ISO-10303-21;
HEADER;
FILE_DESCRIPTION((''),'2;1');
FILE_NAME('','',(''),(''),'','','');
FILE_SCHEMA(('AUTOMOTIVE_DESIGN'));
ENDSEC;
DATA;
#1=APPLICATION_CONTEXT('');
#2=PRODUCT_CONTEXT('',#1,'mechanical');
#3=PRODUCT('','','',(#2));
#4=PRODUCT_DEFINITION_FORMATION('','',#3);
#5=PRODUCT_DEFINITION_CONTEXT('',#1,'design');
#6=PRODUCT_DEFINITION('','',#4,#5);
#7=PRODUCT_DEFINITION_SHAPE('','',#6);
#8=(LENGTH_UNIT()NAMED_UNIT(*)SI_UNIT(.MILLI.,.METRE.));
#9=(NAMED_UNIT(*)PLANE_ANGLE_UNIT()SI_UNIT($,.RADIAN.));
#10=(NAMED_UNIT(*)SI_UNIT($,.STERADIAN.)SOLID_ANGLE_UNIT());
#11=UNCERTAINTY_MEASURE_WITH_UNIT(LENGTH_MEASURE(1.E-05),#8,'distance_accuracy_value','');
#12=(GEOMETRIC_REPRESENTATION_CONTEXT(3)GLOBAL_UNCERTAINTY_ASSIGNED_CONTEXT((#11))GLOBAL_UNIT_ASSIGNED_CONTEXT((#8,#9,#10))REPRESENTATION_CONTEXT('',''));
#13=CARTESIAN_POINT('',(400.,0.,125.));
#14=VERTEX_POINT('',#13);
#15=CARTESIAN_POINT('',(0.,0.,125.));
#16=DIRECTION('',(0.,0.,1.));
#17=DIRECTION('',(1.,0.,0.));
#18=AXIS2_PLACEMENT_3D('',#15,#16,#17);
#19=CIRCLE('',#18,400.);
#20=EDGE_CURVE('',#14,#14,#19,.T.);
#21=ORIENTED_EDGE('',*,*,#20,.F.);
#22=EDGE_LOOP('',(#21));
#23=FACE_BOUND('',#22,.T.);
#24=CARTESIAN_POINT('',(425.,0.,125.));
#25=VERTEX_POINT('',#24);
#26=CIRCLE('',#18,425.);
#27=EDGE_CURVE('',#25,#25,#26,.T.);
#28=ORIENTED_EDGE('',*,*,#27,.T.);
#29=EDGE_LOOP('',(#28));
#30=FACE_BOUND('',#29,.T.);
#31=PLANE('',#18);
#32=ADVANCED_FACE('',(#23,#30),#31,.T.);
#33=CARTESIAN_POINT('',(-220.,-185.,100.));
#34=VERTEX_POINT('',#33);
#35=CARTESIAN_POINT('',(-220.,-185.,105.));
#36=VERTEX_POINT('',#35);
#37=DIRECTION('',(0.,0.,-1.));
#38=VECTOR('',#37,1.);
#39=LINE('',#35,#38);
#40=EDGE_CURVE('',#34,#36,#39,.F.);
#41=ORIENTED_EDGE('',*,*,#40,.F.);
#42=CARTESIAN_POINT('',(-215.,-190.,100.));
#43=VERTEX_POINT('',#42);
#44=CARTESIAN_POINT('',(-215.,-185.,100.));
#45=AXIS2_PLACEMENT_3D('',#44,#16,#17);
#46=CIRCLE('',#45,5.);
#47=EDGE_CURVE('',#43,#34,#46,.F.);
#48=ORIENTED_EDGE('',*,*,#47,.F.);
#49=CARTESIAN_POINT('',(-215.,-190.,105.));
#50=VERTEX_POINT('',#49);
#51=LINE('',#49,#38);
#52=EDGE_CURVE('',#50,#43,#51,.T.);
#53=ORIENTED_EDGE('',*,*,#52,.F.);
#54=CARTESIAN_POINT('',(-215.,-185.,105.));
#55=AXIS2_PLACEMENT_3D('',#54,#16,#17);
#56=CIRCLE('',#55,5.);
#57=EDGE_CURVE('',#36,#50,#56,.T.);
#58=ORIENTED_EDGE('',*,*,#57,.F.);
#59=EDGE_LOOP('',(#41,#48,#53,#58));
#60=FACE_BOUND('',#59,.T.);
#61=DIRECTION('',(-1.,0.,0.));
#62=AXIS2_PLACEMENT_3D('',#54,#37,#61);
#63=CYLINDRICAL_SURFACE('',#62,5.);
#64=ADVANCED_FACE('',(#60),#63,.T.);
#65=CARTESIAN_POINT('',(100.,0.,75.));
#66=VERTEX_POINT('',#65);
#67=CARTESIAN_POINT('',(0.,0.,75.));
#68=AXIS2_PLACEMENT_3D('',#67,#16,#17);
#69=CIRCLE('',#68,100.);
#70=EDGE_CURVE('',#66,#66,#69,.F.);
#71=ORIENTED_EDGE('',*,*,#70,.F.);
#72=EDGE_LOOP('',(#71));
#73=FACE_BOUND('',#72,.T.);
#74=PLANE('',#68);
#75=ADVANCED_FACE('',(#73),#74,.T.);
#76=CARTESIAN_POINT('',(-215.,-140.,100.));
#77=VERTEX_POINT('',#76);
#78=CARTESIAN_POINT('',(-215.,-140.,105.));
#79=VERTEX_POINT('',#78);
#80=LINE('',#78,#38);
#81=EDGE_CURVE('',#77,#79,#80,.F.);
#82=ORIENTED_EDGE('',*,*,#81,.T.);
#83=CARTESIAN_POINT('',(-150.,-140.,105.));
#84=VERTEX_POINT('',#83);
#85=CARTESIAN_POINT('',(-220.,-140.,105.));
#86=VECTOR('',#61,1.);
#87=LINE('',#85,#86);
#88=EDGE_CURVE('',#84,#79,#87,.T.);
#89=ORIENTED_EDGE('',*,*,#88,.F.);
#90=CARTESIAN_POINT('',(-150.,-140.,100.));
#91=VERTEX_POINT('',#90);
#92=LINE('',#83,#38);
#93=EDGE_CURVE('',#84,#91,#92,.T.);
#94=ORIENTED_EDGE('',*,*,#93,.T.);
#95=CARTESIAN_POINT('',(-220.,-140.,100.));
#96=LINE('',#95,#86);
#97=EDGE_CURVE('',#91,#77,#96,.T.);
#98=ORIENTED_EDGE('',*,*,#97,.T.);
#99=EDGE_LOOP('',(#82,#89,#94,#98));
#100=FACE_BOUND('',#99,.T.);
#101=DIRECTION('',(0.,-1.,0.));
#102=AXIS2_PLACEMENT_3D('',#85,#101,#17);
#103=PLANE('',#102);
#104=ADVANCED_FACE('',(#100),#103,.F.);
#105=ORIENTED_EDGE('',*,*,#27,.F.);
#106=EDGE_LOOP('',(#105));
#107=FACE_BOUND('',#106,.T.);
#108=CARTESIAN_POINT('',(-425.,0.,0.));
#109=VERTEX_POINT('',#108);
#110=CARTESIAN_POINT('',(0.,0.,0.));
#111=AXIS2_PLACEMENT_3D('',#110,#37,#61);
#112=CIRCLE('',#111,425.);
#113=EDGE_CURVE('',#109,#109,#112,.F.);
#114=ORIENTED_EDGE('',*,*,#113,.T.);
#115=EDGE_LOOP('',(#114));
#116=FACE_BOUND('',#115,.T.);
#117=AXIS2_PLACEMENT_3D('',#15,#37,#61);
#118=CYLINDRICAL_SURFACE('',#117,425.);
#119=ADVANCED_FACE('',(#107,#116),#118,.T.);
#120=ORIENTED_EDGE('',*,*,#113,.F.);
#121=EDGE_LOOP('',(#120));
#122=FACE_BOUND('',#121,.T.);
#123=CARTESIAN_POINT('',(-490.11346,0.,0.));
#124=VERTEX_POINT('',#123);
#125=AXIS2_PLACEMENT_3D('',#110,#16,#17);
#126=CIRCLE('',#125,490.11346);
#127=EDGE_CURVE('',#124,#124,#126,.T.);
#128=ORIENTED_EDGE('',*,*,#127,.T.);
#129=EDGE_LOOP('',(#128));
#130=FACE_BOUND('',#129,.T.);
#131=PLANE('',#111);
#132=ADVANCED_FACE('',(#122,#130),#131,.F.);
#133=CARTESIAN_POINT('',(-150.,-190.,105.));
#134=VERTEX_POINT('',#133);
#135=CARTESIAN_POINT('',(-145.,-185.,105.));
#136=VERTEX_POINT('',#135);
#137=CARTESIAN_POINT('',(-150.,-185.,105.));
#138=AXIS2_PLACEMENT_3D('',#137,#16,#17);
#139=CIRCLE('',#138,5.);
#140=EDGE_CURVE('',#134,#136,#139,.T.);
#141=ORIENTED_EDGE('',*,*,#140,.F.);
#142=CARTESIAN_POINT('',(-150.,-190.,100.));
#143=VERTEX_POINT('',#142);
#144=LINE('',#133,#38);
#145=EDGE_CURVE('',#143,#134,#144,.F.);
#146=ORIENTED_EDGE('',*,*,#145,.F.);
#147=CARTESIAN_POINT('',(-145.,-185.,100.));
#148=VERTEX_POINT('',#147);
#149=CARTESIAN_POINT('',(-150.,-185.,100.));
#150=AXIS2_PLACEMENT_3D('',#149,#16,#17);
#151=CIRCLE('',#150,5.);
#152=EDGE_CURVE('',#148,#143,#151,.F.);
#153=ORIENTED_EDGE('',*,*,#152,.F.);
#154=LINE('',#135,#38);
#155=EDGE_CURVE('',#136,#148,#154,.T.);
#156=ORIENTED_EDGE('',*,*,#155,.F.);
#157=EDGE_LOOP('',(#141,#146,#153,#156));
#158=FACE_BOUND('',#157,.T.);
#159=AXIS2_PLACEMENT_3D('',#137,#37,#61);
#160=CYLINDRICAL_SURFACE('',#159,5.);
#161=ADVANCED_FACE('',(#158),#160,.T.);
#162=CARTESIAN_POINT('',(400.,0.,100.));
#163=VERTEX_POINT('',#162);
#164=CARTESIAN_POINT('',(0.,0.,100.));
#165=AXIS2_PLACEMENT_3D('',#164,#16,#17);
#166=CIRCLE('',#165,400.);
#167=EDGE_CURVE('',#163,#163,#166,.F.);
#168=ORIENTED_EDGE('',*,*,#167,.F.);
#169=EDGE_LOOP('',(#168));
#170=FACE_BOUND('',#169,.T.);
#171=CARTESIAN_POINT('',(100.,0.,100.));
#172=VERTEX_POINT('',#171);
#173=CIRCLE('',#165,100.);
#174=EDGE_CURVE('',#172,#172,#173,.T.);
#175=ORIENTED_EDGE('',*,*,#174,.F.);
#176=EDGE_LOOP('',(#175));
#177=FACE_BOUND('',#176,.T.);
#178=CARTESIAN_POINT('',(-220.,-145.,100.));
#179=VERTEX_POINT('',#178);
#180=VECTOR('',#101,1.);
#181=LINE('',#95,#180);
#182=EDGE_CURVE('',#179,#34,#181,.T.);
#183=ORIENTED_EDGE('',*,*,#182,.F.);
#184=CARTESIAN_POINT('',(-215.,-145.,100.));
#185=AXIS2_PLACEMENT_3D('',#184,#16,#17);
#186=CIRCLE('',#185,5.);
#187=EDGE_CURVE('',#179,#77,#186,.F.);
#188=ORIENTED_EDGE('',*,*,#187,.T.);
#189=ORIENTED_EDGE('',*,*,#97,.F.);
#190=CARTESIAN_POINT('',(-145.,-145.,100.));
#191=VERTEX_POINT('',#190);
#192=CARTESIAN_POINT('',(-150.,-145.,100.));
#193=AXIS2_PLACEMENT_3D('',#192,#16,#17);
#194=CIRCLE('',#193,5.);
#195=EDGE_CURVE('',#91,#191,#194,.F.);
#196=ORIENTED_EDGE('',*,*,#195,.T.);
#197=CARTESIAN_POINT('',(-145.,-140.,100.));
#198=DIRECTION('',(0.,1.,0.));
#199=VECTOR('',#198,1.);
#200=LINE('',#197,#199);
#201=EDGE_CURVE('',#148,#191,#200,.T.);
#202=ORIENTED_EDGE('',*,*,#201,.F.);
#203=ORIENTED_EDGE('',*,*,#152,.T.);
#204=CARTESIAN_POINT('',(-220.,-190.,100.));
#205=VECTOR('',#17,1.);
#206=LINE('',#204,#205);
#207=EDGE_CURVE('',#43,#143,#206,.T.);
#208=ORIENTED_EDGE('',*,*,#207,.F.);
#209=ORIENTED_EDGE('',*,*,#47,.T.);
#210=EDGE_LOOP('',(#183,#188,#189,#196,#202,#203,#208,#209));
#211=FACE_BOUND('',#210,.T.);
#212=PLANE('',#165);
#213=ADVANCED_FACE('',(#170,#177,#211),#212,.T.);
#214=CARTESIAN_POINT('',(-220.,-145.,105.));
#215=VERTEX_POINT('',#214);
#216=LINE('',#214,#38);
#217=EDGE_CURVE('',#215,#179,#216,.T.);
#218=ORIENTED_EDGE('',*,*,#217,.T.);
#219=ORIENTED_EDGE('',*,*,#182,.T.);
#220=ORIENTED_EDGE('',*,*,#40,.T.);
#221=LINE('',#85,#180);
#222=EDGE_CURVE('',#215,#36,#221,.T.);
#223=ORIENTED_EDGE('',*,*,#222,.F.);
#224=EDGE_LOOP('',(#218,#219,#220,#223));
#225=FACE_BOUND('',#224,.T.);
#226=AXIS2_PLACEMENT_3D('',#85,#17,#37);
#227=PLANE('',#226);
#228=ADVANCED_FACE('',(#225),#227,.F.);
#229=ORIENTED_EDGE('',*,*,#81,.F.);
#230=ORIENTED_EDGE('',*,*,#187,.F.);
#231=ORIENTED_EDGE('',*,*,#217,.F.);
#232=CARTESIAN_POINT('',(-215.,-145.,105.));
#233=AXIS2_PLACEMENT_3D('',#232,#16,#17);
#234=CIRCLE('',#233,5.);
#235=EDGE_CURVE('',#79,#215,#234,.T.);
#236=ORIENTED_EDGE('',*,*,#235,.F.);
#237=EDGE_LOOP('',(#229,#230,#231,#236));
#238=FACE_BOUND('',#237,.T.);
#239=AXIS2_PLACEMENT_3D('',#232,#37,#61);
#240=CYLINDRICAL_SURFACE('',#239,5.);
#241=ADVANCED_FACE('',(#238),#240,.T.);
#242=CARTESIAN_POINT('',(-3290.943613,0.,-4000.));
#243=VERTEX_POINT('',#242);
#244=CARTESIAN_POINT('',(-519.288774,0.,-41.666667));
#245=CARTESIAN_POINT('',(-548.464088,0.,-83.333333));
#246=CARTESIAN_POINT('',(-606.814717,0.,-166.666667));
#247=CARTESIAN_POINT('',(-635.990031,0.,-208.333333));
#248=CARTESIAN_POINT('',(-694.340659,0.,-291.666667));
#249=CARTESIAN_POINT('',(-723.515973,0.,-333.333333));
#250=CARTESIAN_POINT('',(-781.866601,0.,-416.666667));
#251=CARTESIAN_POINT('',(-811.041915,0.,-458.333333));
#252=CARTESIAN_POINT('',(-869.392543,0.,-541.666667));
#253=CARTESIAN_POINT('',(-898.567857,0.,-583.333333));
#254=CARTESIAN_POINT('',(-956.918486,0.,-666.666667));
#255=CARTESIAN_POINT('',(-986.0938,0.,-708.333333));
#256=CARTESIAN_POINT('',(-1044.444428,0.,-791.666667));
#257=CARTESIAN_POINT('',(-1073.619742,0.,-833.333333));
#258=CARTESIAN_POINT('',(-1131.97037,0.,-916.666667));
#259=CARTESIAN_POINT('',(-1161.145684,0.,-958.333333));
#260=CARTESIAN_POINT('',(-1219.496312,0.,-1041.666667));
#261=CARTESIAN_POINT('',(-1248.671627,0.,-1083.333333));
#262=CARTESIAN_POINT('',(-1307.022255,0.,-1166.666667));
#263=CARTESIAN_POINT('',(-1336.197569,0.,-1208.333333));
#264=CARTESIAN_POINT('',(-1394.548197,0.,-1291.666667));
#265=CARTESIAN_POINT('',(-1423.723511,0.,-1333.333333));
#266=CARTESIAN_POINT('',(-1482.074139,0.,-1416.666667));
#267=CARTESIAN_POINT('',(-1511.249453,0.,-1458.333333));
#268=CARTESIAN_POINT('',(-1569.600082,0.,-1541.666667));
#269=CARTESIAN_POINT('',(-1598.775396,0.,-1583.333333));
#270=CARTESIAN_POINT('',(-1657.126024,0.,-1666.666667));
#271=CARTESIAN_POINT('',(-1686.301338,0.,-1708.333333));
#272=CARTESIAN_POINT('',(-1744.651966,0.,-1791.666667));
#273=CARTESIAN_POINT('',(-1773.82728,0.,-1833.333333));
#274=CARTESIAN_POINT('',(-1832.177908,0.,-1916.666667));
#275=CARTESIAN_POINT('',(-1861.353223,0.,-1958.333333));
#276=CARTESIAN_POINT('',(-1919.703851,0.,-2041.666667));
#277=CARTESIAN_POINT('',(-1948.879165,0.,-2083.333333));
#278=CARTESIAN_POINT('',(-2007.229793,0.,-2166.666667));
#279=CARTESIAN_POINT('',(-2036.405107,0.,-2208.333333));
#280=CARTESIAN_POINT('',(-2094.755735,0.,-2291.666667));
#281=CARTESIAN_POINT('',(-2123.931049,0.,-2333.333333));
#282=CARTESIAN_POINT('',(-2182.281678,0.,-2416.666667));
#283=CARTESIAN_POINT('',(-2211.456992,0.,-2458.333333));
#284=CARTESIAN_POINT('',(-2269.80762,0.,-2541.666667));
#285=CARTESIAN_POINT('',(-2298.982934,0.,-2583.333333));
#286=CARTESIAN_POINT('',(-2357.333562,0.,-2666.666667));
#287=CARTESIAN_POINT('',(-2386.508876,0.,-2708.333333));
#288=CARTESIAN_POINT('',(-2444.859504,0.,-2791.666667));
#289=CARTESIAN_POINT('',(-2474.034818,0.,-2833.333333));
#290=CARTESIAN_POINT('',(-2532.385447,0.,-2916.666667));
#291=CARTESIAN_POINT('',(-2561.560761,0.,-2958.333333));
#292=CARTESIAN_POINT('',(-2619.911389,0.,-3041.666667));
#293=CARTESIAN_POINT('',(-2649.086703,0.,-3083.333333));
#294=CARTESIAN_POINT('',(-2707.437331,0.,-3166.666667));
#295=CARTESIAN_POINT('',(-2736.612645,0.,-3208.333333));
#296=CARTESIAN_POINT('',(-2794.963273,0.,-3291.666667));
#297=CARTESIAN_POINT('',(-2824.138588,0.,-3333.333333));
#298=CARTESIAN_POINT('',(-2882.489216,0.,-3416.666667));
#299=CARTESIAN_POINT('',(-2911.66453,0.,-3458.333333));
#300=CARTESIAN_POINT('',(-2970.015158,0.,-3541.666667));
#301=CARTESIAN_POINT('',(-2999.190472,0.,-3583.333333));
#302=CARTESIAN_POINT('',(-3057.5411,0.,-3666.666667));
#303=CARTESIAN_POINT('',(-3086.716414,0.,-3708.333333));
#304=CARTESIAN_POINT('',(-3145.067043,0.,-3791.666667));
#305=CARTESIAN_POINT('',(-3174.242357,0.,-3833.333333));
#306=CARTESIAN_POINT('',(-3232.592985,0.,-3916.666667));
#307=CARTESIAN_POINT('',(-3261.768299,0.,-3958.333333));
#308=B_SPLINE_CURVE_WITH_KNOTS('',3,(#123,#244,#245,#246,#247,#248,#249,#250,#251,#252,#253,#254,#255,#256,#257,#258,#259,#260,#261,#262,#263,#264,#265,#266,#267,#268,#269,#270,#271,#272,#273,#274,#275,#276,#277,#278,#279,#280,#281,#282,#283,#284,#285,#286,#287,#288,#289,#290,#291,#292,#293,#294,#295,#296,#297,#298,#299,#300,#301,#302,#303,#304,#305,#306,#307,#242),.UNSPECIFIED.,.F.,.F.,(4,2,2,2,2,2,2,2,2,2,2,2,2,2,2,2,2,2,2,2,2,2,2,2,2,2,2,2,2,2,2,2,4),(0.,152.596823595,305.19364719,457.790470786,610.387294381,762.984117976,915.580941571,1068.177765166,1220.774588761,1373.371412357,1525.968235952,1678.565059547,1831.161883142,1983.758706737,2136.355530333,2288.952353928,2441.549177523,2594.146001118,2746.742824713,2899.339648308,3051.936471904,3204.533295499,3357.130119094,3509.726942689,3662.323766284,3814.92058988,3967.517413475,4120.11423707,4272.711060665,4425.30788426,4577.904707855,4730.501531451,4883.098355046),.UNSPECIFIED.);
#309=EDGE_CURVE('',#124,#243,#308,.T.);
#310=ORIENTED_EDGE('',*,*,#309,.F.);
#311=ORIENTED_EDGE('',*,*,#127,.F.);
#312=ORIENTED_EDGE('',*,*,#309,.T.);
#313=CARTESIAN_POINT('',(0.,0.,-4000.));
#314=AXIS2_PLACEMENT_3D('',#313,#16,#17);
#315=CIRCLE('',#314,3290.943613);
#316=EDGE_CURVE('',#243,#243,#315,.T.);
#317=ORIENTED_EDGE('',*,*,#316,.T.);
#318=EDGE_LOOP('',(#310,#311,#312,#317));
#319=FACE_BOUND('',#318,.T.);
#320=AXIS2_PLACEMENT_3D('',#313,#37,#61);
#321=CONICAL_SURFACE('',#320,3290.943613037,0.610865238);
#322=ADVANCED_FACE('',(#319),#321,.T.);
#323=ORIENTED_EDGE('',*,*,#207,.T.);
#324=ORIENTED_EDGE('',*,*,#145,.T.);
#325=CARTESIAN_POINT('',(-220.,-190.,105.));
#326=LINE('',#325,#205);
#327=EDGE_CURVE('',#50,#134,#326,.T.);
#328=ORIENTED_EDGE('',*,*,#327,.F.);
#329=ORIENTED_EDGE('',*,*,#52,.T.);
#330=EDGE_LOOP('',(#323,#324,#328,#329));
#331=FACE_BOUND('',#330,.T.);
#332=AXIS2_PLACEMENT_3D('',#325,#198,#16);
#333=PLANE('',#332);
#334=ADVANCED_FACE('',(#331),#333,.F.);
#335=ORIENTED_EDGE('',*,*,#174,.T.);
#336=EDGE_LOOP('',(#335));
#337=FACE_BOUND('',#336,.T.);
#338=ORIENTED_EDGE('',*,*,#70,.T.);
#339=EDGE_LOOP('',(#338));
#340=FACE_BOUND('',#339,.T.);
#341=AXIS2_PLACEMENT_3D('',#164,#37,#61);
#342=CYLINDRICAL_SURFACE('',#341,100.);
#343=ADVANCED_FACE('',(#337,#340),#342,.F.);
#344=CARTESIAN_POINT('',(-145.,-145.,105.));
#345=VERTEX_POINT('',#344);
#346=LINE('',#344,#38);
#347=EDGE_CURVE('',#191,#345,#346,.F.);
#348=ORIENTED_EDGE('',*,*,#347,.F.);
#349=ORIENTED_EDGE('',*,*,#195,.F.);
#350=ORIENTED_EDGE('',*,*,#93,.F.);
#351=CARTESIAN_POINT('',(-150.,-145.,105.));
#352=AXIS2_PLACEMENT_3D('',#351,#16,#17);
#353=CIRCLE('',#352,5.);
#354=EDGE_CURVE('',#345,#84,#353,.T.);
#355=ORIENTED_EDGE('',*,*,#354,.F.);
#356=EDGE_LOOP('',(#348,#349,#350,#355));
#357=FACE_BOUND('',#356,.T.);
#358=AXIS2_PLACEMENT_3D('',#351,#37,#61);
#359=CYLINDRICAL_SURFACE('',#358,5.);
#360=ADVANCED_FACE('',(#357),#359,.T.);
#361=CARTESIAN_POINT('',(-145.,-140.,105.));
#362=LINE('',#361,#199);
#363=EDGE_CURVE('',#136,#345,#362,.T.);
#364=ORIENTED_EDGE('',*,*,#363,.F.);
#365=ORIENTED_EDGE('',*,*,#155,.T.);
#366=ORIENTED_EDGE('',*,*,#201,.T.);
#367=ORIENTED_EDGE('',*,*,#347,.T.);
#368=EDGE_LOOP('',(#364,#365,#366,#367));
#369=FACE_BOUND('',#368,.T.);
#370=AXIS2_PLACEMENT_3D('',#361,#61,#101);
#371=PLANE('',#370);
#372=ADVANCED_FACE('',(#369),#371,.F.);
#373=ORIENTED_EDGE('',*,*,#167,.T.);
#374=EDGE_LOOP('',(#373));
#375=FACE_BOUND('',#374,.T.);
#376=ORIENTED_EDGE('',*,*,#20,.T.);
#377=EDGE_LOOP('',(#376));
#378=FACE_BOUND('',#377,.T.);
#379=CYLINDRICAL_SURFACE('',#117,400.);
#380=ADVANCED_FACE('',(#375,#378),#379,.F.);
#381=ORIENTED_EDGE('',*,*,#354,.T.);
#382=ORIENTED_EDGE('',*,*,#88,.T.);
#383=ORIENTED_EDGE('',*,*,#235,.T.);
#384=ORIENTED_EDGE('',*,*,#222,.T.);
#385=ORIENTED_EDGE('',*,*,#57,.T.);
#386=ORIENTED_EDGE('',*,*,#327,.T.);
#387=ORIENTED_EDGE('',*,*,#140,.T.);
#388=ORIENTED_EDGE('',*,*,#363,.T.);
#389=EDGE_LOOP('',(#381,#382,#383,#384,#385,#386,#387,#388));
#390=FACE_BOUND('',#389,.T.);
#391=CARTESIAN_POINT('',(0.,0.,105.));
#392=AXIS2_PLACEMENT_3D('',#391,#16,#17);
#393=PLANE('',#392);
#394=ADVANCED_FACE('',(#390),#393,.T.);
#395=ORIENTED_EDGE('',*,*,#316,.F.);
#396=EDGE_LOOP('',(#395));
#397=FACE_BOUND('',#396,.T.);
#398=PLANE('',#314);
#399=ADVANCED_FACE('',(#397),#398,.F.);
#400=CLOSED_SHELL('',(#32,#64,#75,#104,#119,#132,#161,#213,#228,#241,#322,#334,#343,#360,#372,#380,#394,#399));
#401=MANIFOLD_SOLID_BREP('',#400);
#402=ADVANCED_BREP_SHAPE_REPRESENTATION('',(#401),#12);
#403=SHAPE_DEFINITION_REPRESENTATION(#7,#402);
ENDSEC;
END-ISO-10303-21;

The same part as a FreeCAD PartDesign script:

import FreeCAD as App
import Part
import Sketcher
from FreeCAD import Vector
Q = App.Units.Quantity


def edges_at(feature, points):
    """Names of the edges that pass closest to the given points."""
    edges = feature.Shape.Edges
    near = lambda p: min(range(len(edges)), key=lambda i: edges[i].distToShape(Part.Vertex(*p))[0])
    return sorted({f"Edge{near(p) + 1}" for p in points})


def add_polygon(sketch, points):
    """Adds a closed chain of lines whose ends are joined by coincident constraints."""
    first, n = sketch.GeometryCount, len(points)
    for a, b in zip(points, points[1:] + points[:1]):
        sketch.addGeometry(Part.LineSegment(App.Vector(*a, 0), App.Vector(*b, 0)), False)
    for i in range(n):
        sketch.addConstraint(Sketcher.Constraint("Coincident", first + i, 2, first + (i + 1) % n, 1))

doc = App.newDocument("Part")
body = doc.addObject("PartDesign::Body", "Body")

# Sketch on XY plane
sketch1 = doc.addObject("Sketcher::SketchObject", "Sketch")
body.addObject(sketch1)
sketch1.AttachmentSupport = (doc.XY_Plane, [""])
sketch1.MapMode = "FlatFace"
sketch1.addGeometry(Part.Circle(Vector(0, 0, 0), Vector(0, 0, 1), 400), False)
sketch1.addGeometry(Part.Circle(Vector(0, 0, 0), Vector(0, 0, 1), 100), False)
sketch1.addConstraint(Sketcher.Constraint("Coincident", 0, 3, -1, 1))
sketch1.addConstraint(Sketcher.Constraint("Coincident", 1, 3, -1, 1))
sketch1.addConstraint(Sketcher.Constraint("Diameter", 0, Q("800 mm")))
sketch1.addConstraint(Sketcher.Constraint("Diameter", 1, Q("200 mm")))
pad1 = doc.addObject("PartDesign::Pad", "Pad")
body.addObject(pad1)
pad1.Profile = sketch1
pad1.Length = 100
body2 = doc.addObject("PartDesign::Body", "Body001")

# Sketch on XY plane
sketch2 = doc.addObject("Sketcher::SketchObject", "Sketch001")
body2.addObject(sketch2)
sketch2.AttachmentSupport = (doc.getObject("XY_Plane001"), [""])
sketch2.MapMode = "FlatFace"
sketch2.addGeometry(Part.Circle(Vector(0, 0, 0), Vector(0, 0, 1), 425), False)
sketch2.addGeometry(Part.Circle(Vector(0, 0, 0), Vector(0, 0, 1), 400), False)
sketch2.addConstraint(Sketcher.Constraint("Coincident", 0, 3, -1, 1))
sketch2.addConstraint(Sketcher.Constraint("Coincident", 1, 3, -1, 1))
sketch2.addConstraint(Sketcher.Constraint("Diameter", 0, Q("850 mm")))
sketch2.addConstraint(Sketcher.Constraint("Diameter", 1, Q("800 mm")))
pad2 = doc.addObject("PartDesign::Pad", "Pad001")
body2.addObject(pad2)
pad2.Profile = sketch2
pad2.Length = 125
body3 = doc.addObject("PartDesign::Body", "Body002")

# Sketch on XY plane
sketch3 = doc.addObject("Sketcher::SketchObject", "Sketch002")
body3.addObject(sketch3)
sketch3.AttachmentSupport = (doc.getObject("XY_Plane002"), [""])
sketch3.MapMode = "FlatFace"
sketch3.addGeometry(Part.Circle(Vector(0, 0, 0), Vector(0, 0, 1), 100), False)
sketch3.addConstraint(Sketcher.Constraint("Coincident", 0, 3, -1, 1))
sketch3.addConstraint(Sketcher.Constraint("Diameter", 0, Q("200 mm")))
pad3 = doc.addObject("PartDesign::Pad", "Pad002")
body3.addObject(pad3)
pad3.Profile = sketch3
pad3.Length = 75
doc.recompute()

boolean = doc.addObject("PartDesign::Boolean", "Boolean")
body.addObject(boolean)
boolean.Type = "Fuse"
boolean.addObjects([body2])

# Sketch on XY plane
sketch4 = doc.addObject("Sketcher::SketchObject", "Sketch003")
body.addObject(sketch4)
sketch4.AttachmentSupport = (doc.XY_Plane, [""])
sketch4.MapMode = "FlatFace"
sketch4.AttachmentOffset = App.Placement(Vector(0, 0, 100), App.Rotation())
add_polygon(sketch4, [(-220, -140), (-220, -190), (-145, -190), (-145, -140)])  # lines 0-3
sketch4.addConstraint(Sketcher.Constraint("Vertical", 0))
sketch4.addConstraint(Sketcher.Constraint("Horizontal", 1))
sketch4.addConstraint(Sketcher.Constraint("Vertical", 2))
sketch4.addConstraint(Sketcher.Constraint("Horizontal", 3))
sketch4.addConstraint(Sketcher.Constraint("DistanceX", 1, 1, 1, 2, Q("75 mm")))
sketch4.addConstraint(Sketcher.Constraint("DistanceY", 0, 2, 0, 1, Q("50 mm")))
sketch4.addConstraint(Sketcher.Constraint("DistanceX", 0, 2, -1, 1, Q("220 mm")))
sketch4.addConstraint(Sketcher.Constraint("DistanceY", 0, 2, -1, 1, Q("190 mm")))
pad4 = doc.addObject("PartDesign::Pad", "Pad003")
body.addObject(pad4)
pad4.Profile = sketch4
pad4.Length = 5
doc.recompute()

fillet = doc.addObject("PartDesign::Fillet", "Fillet")
body.addObject(fillet)
fillet.Base = (pad4, edges_at(pad4, [
    (-220, -140, 102.5),
    (-220, -190, 102.5),
    (-145, -190, 102.5),
    (-145, -140, 102.5),
]))
fillet.Radius = 5
doc.recompute()

boolean2 = doc.addObject("PartDesign::Boolean", "Boolean001")
body.addObject(boolean2)
boolean2.Type = "Fuse"
boolean2.addObjects([body3])

# Sketch on XZ plane
sketch5 = doc.addObject("Sketcher::SketchObject", "Sketch004")
body.addObject(sketch5)
sketch5.AttachmentSupport = (doc.XZ_Plane, [""])
sketch5.MapMode = "FlatFace"
add_polygon(sketch5, [(-3290.943613, -4000), (-490.11346, 0), (0, 0), (0, -4000)])  # lines 0-3
sketch5.addConstraint(Sketcher.Constraint("Horizontal", 1))
sketch5.addConstraint(Sketcher.Constraint("Vertical", 2))
sketch5.addConstraint(Sketcher.Constraint("Horizontal", 3))
sketch5.addConstraint(Sketcher.Constraint("Coincident", 1, 2, -1, 1))
sketch5.addConstraint(Sketcher.Constraint("DistanceY", 2, 2, 2, 1, Q("4000 mm")))
sketch5.addConstraint(Sketcher.Constraint("Angle", 0, Q("55 deg")))
sketch5.addConstraint(Sketcher.Constraint("DistanceX", 1, 1, 1, 2, Q("490.11346 mm")))
revolution = doc.addObject("PartDesign::Revolution", "Revolution")
body.addObject(revolution)
revolution.Profile = sketch5
revolution.ReferenceAxis = (sketch5, ["V_Axis"])
revolution.Angle = 360

doc.recompute()
